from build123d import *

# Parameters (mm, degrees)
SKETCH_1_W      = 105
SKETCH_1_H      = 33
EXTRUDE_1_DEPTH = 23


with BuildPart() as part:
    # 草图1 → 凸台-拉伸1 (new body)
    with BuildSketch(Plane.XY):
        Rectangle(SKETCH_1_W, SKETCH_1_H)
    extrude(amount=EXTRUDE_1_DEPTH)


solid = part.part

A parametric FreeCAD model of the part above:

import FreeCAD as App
import Part
import Sketcher

V = App.Vector


def add_polygon(sketch, points):
    """Adds a closed chain of lines whose ends are joined by coincident constraints."""
    first, n = sketch.GeometryCount, len(points)
    for a, b in zip(points, points[1:] + points[:1]):
        sketch.addGeometry(Part.LineSegment(App.Vector(*a, 0), App.Vector(*b, 0)), False)
    for i in range(n):
        sketch.addConstraint(Sketcher.Constraint("Coincident", first + i, 2, first + (i + 1) % n, 1))

doc = App.newDocument("Part")
body = doc.addObject("PartDesign::Body", "Body")

sketch1 = body.newObject("Sketcher::SketchObject", "Sketch")
sketch1.AttachmentSupport = (doc.getObject("XY_Plane"), [""])
sketch1.MapMode = "FlatFace"
add_polygon(sketch1, [(-52, 16), (-52, -16), (52, -16), (52, 16)])
sketch1.addConstraint([
    Sketcher.Constraint("Vertical", 0),
    Sketcher.Constraint("Horizontal", 1),
    Sketcher.Constraint("Vertical", 2),
    Sketcher.Constraint("Horizontal", 3),
    Sketcher.Constraint("Symmetric", 0, 2, 2, 2, -1, 1),
    Sketcher.Constraint("DistanceX", 1, 1, 1, 2, 105.0),
    Sketcher.Constraint("DistanceY", 0, 2, 0, 1, 33.0),
])
pad1 = body.newObject("PartDesign::Pad", "Pad")
pad1.Profile = sketch1
pad1.Length = 23

doc.recompute()
